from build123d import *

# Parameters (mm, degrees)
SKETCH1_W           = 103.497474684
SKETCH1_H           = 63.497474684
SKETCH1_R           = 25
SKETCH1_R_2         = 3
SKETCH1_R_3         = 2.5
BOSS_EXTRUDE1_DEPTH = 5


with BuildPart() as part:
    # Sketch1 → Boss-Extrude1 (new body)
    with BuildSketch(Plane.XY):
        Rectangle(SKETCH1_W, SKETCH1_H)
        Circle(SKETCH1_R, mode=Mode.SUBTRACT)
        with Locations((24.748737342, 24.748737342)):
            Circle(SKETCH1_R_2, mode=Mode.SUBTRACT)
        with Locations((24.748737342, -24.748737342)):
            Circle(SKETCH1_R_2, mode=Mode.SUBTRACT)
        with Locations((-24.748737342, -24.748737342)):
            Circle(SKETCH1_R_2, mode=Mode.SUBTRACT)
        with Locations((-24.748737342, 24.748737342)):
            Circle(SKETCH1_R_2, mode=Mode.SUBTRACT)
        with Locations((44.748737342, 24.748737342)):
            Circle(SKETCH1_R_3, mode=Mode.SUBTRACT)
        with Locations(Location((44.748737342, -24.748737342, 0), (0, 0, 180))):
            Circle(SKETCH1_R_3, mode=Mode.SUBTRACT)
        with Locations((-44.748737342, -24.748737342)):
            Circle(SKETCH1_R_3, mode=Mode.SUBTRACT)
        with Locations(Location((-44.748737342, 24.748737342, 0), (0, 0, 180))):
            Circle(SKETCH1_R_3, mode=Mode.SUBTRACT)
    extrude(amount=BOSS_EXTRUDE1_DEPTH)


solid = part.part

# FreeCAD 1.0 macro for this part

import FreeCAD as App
import Part
import Sketcher

doc = App.newDocument("Part")
body = doc.addObject("PartDesign::Body", "Body")

sketch1 = body.newObject("Sketcher::SketchObject", "Sketch")
sketch1.AttachmentSupport = (doc.getObject("XY_Plane"), [""])
sketch1.MapMode = "FlatFace"
sketch1.addGeometry([
    Part.LineSegment(App.Vector(-51.7, 31.7, 0), App.Vector(-51.7, -31.7, 0)),
    Part.LineSegment(App.Vector(-51.7, -31.7, 0), App.Vector(51.7, -31.7, 0)),
    Part.LineSegment(App.Vector(51.7, -31.7, 0), App.Vector(51.7, 31.7, 0)),
    Part.LineSegment(App.Vector(51.7, 31.7, 0), App.Vector(-51.7, 31.7, 0)),
    Part.Circle(App.Vector(-44.7, -24.7, 0), App.Vector(0, 0, 1), 2.5),
    Part.Circle(App.Vector(-24.7, -24.7, 0), App.Vector(0, 0, 1), 3),
    Part.Circle(App.Vector(24.7, -24.7, 0), App.Vector(0, 0, 1), 3),
    Part.Circle(App.Vector(44.7, -24.7, 0), App.Vector(0, 0, 1), 2.5),
    Part.Circle(App.Vector(-44.7, 24.7, 0), App.Vector(0, 0, 1), 2.5),
    Part.Circle(App.Vector(-24.7, 24.7, 0), App.Vector(0, 0, 1), 3),
    Part.Circle(App.Vector(0, 0, 0), App.Vector(0, 0, 1), 25),
    Part.Circle(App.Vector(24.7, 24.7, 0), App.Vector(0, 0, 1), 3),
    Part.Circle(App.Vector(44.7, 24.7, 0), App.Vector(0, 0, 1), 2.5),
], False)
sketch1.addConstraint([
    Sketcher.Constraint("Coincident", 0, 2, 1, 1),
    Sketcher.Constraint("Coincident", 1, 2, 2, 1),
    Sketcher.Constraint("Coincident", 2, 2, 3, 1),
    Sketcher.Constraint("Coincident", 3, 2, 0, 1),
    Sketcher.Constraint("Vertical", 0),
    Sketcher.Constraint("Horizontal", 1),
    Sketcher.Constraint("Vertical", 2),
    Sketcher.Constraint("Horizontal", 3),
    Sketcher.Constraint("Coincident", 10, 3, -1, 1),
    Sketcher.Constraint("Equal", 5, 6),
    Sketcher.Constraint("Equal", 4, 7),
    Sketcher.Constraint("Equal", 7, 8),
    Sketcher.Constraint("Equal", 6, 9),
    Sketcher.Constraint("Equal", 9, 11),
    Sketcher.Constraint("Equal", 8, 12),
    Sketcher.Constraint("Symmetric", 7, 3, 8, 3, -1, 1),
    Sketcher.Constraint("Symmetric", 6, 3, 9, 3, -1, 1),
    Sketcher.Constraint("Symmetric", 5, 3, 11, 3, -1, 1),
    Sketcher.Constraint("Symmetric", 4, 3, 12, 3, -1, 1),
    Sketcher.Constraint("Symmetric", 0, 2, 2, 2, -1, 1),
    Sketcher.Constraint("Symmetric", 5, 3, 6, 3, -2),
    Sketcher.Constraint("Symmetric", 4, 3, 7, 3, -2),
    Sketcher.Constraint("Horizontal", 4, 3, 5, 3),
    Sketcher.Constraint("Diameter", 4, 5.0),
    Sketcher.Constraint("Diameter", 5, 6.0),
    Sketcher.Constraint("Diameter", 10, 50.0),
    Sketcher.Constraint("DistanceX", 4, 3, 5, 3, 20.0),
    Sketcher.Constraint("DistanceX", 0, 2, 4, 3, 7.0),
    Sketcher.Constraint("DistanceY", 0, 2, 4, 3, 7.0),
    Sketcher.Constraint("DistanceX", 1, 1, 1, 2, 103.497475),
    Sketcher.Constraint("DistanceY", 0, 2, 0, 1, 63.497475),
])
pad1 = body.newObject("PartDesign::Pad", "Pad")
pad1.Profile = sketch1
pad1.Length = 5

doc.recompute()
